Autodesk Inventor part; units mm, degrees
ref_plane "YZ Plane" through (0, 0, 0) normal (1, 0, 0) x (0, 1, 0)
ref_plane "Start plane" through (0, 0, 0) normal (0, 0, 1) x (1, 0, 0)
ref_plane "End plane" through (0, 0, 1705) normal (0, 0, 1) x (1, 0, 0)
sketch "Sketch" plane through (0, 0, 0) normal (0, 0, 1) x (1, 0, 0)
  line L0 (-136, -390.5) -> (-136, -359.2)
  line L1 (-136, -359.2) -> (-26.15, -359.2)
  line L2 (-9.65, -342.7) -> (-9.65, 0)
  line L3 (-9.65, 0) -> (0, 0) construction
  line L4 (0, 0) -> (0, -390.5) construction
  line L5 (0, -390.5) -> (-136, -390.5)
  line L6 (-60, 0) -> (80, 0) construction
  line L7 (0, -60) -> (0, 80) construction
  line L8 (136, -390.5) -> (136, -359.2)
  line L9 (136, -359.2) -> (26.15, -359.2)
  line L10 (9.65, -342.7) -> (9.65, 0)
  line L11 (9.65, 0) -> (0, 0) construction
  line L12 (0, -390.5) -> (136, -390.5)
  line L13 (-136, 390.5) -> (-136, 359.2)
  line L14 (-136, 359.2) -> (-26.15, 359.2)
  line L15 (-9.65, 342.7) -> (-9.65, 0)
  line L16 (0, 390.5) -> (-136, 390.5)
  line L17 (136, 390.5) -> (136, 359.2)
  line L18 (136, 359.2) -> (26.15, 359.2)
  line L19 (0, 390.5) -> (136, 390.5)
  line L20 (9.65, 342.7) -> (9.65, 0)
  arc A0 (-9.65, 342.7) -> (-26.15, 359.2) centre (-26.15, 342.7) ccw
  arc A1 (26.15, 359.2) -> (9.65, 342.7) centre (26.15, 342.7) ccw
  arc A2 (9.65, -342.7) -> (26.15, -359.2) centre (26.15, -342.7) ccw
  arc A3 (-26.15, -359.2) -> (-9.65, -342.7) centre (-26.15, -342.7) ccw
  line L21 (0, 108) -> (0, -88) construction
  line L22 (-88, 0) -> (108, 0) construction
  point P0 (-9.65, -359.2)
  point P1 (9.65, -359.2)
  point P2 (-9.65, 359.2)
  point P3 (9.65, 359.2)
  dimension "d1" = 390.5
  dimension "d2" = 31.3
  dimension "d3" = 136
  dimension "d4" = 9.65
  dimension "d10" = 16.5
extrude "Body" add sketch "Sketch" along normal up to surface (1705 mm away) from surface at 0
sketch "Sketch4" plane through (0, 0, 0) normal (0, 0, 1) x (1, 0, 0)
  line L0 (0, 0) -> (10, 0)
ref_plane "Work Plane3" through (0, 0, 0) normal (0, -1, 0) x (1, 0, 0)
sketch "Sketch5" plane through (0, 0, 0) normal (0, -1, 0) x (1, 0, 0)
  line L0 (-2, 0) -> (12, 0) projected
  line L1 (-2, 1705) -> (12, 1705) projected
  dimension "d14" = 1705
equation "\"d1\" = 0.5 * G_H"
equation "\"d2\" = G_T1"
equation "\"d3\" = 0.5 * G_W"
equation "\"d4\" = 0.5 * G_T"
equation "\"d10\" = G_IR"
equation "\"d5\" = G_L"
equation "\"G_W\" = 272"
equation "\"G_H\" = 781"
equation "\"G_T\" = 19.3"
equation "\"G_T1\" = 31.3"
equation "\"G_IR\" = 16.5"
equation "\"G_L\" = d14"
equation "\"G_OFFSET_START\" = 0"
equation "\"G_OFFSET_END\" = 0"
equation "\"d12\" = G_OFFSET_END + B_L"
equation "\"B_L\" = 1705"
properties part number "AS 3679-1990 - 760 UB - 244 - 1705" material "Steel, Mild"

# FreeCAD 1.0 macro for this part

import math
import FreeCAD as App
import Part
import Sketcher

doc = App.newDocument("Part")
body = doc.addObject("PartDesign::Body", "Body")

# Sketch on XY plane
sketch1 = doc.addObject("Sketcher::SketchObject", "Sketch")
body.addObject(sketch1)
sketch1.AttachmentSupport = (doc.XY_Plane, [""])
sketch1.MapMode = "FlatFace"
sketch1.addGeometry(Part.LineSegment(App.Vector(-136, -359, 0), App.Vector(-136, -390, 0)), False)
sketch1.addGeometry(Part.LineSegment(App.Vector(-136, -390, 0), App.Vector(136, -390, 0)), False)
sketch1.addGeometry(Part.LineSegment(App.Vector(136, -390, 0), App.Vector(136, -359, 0)), False)
sketch1.addGeometry(Part.LineSegment(App.Vector(136, -359, 0), App.Vector(26, -359, 0)), False)
sketch1.addGeometry(Part.ArcOfCircle(Part.Circle(App.Vector(26, -343, 0), App.Vector(0, 0, 1), 16), math.radians(180), math.radians(270)), False)
sketch1.addGeometry(Part.LineSegment(App.Vector(10, -343, 0), App.Vector(10, 343, 0)), False)
sketch1.addGeometry(Part.ArcOfCircle(Part.Circle(App.Vector(26, 343, 0), App.Vector(0, 0, 1), 16), math.radians(90), math.radians(180)), False)
sketch1.addGeometry(Part.LineSegment(App.Vector(26, 359, 0), App.Vector(136, 359, 0)), False)
sketch1.addGeometry(Part.LineSegment(App.Vector(136, 359, 0), App.Vector(136, 390, 0)), False)
sketch1.addGeometry(Part.LineSegment(App.Vector(136, 390, 0), App.Vector(-136, 390, 0)), False)
sketch1.addGeometry(Part.LineSegment(App.Vector(-136, 390, 0), App.Vector(-136, 359, 0)), False)
sketch1.addGeometry(Part.LineSegment(App.Vector(-136, 359, 0), App.Vector(-26, 359, 0)), False)
sketch1.addGeometry(Part.ArcOfCircle(Part.Circle(App.Vector(-26, 343, 0), App.Vector(0, 0, 1), 16), math.radians(0), math.radians(90)), False)
sketch1.addGeometry(Part.LineSegment(App.Vector(-10, 343, 0), App.Vector(-10, -343, 0)), False)
sketch1.addGeometry(Part.ArcOfCircle(Part.Circle(App.Vector(-26, -343, 0), App.Vector(0, 0, 1), 16), math.radians(-90), math.radians(0)), False)
sketch1.addGeometry(Part.LineSegment(App.Vector(-26, -359, 0), App.Vector(-136, -359, 0)), False)
sketch1.addConstraint(Sketcher.Constraint("Coincident", 0, 2, 1, 1))
sketch1.addConstraint(Sketcher.Constraint("Coincident", 1, 2, 2, 1))
sketch1.addConstraint(Sketcher.Constraint("Coincident", 2, 2, 3, 1))
sketch1.addConstraint(Sketcher.Constraint("Tangent", 3, 2, 4, 2))
sketch1.addConstraint(Sketcher.Constraint("Tangent", 4, 1, 5, 1))
sketch1.addConstraint(Sketcher.Constraint("Tangent", 5, 2, 6, 2))
sketch1.addConstraint(Sketcher.Constraint("Tangent", 6, 1, 7, 1))
sketch1.addConstraint(Sketcher.Constraint("Coincident", 7, 2, 8, 1))
sketch1.addConstraint(Sketcher.Constraint("Coincident", 8, 2, 9, 1))
sketch1.addConstraint(Sketcher.Constraint("Coincident", 9, 2, 10, 1))
sketch1.addConstraint(Sketcher.Constraint("Coincident", 10, 2, 11, 1))
sketch1.addConstraint(Sketcher.Constraint("Tangent", 11, 2, 12, 2))
sketch1.addConstraint(Sketcher.Constraint("Tangent", 12, 1, 13, 1))
sketch1.addConstraint(Sketcher.Constraint("Tangent", 13, 2, 14, 2))
sketch1.addConstraint(Sketcher.Constraint("Tangent", 14, 1, 15, 1))
sketch1.addConstraint(Sketcher.Constraint("Coincident", 15, 2, 0, 1))
sketch1.addConstraint(Sketcher.Constraint("Vertical", 0))
sketch1.addConstraint(Sketcher.Constraint("Horizontal", 1))
sketch1.addConstraint(Sketcher.Constraint("Vertical", 2))
sketch1.addConstraint(Sketcher.Constraint("Horizontal", 3))
sketch1.addConstraint(Sketcher.Constraint("Vertical", 5))
sketch1.addConstraint(Sketcher.Constraint("Horizontal", 7))
sketch1.addConstraint(Sketcher.Constraint("Vertical", 8))
sketch1.addConstraint(Sketcher.Constraint("Horizontal", 9))
sketch1.addConstraint(Sketcher.Constraint("Vertical", 10))
sketch1.addConstraint(Sketcher.Constraint("Horizontal", 11))
sketch1.addConstraint(Sketcher.Constraint("Vertical", 13))
sketch1.addConstraint(Sketcher.Constraint("Horizontal", 15))
sketch1.addConstraint(Sketcher.Constraint("Equal", 4, 6))
sketch1.addConstraint(Sketcher.Constraint("Equal", 6, 12))
sketch1.addConstraint(Sketcher.Constraint("Equal", 12, 14))
sketch1.addConstraint(Sketcher.Constraint("Symmetric", 4, 3, 12, 3, -1, 1))
sketch1.addConstraint(Sketcher.Constraint("Symmetric", 0, 2, 8, 2, -1, 1))
sketch1.addConstraint(Sketcher.Constraint("Symmetric", 7, 2, 10, 2, -2))
sketch1.addConstraint(Sketcher.Constraint("Symmetric", 2, 2, 15, 2, -2))
sketch1.addConstraint(Sketcher.Constraint("Radius", 4, 16.5))
sketch1.addConstraint(Sketcher.Constraint("DistanceY", 0, 2, 0, 1, 31.3))
sketch1.addConstraint(Sketcher.Constraint("DistanceX", 0, 2, -1, 1, 136.0))
sketch1.addConstraint(Sketcher.Constraint("DistanceY", 0, 2, -1, 1, 390.5))
sketch1.addConstraint(Sketcher.Constraint("DistanceX", -1, 1, 4, 1, 9.65))
pad1 = doc.addObject("PartDesign::Pad", "Pad")
body.addObject(pad1)
pad1.Profile = sketch1
pad1.Length = 1705

doc.recompute()
